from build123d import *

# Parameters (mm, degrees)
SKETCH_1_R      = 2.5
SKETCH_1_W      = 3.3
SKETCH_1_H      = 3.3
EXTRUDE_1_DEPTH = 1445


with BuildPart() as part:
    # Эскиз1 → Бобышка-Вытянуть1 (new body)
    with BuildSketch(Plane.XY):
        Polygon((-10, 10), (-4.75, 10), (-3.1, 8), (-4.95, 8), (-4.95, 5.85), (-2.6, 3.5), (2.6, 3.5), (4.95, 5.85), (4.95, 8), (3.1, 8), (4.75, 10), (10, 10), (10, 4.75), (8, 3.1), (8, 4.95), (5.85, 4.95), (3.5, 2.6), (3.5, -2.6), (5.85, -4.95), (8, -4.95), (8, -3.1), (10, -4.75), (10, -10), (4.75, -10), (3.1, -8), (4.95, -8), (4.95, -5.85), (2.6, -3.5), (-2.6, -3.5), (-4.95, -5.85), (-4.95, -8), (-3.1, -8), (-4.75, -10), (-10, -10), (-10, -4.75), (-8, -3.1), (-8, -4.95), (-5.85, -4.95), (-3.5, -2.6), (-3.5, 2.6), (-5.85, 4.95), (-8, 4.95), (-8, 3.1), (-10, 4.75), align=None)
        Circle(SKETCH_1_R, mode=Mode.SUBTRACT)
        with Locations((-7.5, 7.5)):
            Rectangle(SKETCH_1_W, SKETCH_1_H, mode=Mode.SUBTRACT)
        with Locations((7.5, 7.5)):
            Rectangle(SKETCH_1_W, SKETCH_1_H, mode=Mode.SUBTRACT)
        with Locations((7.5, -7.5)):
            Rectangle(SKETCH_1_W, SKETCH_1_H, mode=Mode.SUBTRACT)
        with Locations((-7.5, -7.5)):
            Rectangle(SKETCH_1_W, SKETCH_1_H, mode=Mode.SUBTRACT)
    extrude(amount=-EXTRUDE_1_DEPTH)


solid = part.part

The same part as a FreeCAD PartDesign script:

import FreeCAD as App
import Part
import Sketcher

V = App.Vector
Q = App.Units.Quantity

doc = App.newDocument("Part")
body = doc.addObject("PartDesign::Body", "Body")

sketch1 = body.newObject("Sketcher::SketchObject", "Sketch")
sketch1.AttachmentSupport = (doc.getObject("XY_Plane"), [""])
sketch1.MapMode = "FlatFace"
sketch1.addGeometry(Part.LineSegment(V(-4.8, 10, 0), V(-10, 10, 0)), False)
sketch1.addGeometry(Part.LineSegment(V(-10, 10, 0), V(-10, 4.8, 0)), False)
sketch1.addGeometry(Part.LineSegment(V(-10, 4.8, 0), V(-8, 3.1, 0)), False)
sketch1.addGeometry(Part.LineSegment(V(-8, 3.1, 0), V(-8, 5, 0)), False)
sketch1.addGeometry(Part.LineSegment(V(-8, 5, 0), V(-5.8, 5, 0)), False)
sketch1.addGeometry(Part.LineSegment(V(-5.8, 5, 0), V(-3.5, 2.6, 0)), False)
sketch1.addGeometry(Part.LineSegment(V(-3.5, 2.6, 0), V(-3.5, -2.6, 0)), False)
sketch1.addGeometry(Part.LineSegment(V(-3.5, -2.6, 0), V(-5.8, -5, 0)), False)
sketch1.addGeometry(Part.LineSegment(V(-5.8, -5, 0), V(-8, -5, 0)), False)
sketch1.addGeometry(Part.LineSegment(V(-8, -5, 0), V(-8, -3.1, 0)), False)
sketch1.addGeometry(Part.LineSegment(V(-8, -3.1, 0), V(-10, -4.8, 0)), False)
sketch1.addGeometry(Part.LineSegment(V(-10, -4.8, 0), V(-10, -10, 0)), False)
sketch1.addGeometry(Part.LineSegment(V(-10, -10, 0), V(-4.8, -10, 0)), False)
sketch1.addGeometry(Part.LineSegment(V(-4.8, -10, 0), V(-3.1, -8, 0)), False)
sketch1.addGeometry(Part.LineSegment(V(-3.1, -8, 0), V(-5, -8, 0)), False)
sketch1.addGeometry(Part.LineSegment(V(-5, -8, 0), V(-5, -5.8, 0)), False)
sketch1.addGeometry(Part.LineSegment(V(-5, -5.8, 0), V(-2.6, -3.5, 0)), False)
sketch1.addGeometry(Part.LineSegment(V(-2.6, -3.5, 0), V(2.6, -3.5, 0)), False)
sketch1.addGeometry(Part.LineSegment(V(2.6, -3.5, 0), V(5, -5.8, 0)), False)
sketch1.addGeometry(Part.LineSegment(V(5, -5.8, 0), V(5, -8, 0)), False)
sketch1.addGeometry(Part.LineSegment(V(5, -8, 0), V(3.1, -8, 0)), False)
sketch1.addGeometry(Part.LineSegment(V(3.1, -8, 0), V(4.8, -10, 0)), False)
sketch1.addGeometry(Part.LineSegment(V(4.8, -10, 0), V(10, -10, 0)), False)
sketch1.addGeometry(Part.LineSegment(V(10, -10, 0), V(10, -4.8, 0)), False)
sketch1.addGeometry(Part.LineSegment(V(10, -4.8, 0), V(8, -3.1, 0)), False)
sketch1.addGeometry(Part.LineSegment(V(8, -3.1, 0), V(8, -5, 0)), False)
sketch1.addGeometry(Part.LineSegment(V(8, -5, 0), V(5.8, -5, 0)), False)
sketch1.addGeometry(Part.LineSegment(V(5.8, -5, 0), V(3.5, -2.6, 0)), False)
sketch1.addGeometry(Part.LineSegment(V(3.5, -2.6, 0), V(3.5, 2.6, 0)), False)
sketch1.addGeometry(Part.LineSegment(V(3.5, 2.6, 0), V(5.8, 5, 0)), False)
sketch1.addGeometry(Part.LineSegment(V(5.8, 5, 0), V(8, 5, 0)), False)
sketch1.addGeometry(Part.LineSegment(V(8, 5, 0), V(8, 3.1, 0)), False)
sketch1.addGeometry(Part.LineSegment(V(8, 3.1, 0), V(10, 4.8, 0)), False)
sketch1.addGeometry(Part.LineSegment(V(10, 4.8, 0), V(10, 10, 0)), False)
sketch1.addGeometry(Part.LineSegment(V(10, 10, 0), V(4.8, 10, 0)), False)
sketch1.addGeometry(Part.LineSegment(V(4.8, 10, 0), V(3.1, 8, 0)), False)
sketch1.addGeometry(Part.LineSegment(V(3.1, 8, 0), V(5, 8, 0)), False)
sketch1.addGeometry(Part.LineSegment(V(5, 8, 0), V(5, 5.8, 0)), False)
sketch1.addGeometry(Part.LineSegment(V(5, 5.8, 0), V(2.6, 3.5, 0)), False)
sketch1.addGeometry(Part.LineSegment(V(2.6, 3.5, 0), V(-2.6, 3.5, 0)), False)
sketch1.addGeometry(Part.LineSegment(V(-2.6, 3.5, 0), V(-5, 5.8, 0)), False)
sketch1.addGeometry(Part.LineSegment(V(-5, 5.8, 0), V(-5, 8, 0)), False)
sketch1.addGeometry(Part.LineSegment(V(-5, 8, 0), V(-3.1, 8, 0)), False)
sketch1.addGeometry(Part.LineSegment(V(-3.1, 8, 0), V(-4.8, 10, 0)), False)
sketch1.addGeometry(Part.LineSegment(V(5.8, -9.2, 0), V(5.8, -5.8, 0)), False)
sketch1.addGeometry(Part.LineSegment(V(5.8, -5.8, 0), V(9.2, -5.8, 0)), False)
sketch1.addGeometry(Part.LineSegment(V(9.2, -5.8, 0), V(9.2, -9.2, 0)), False)
sketch1.addGeometry(Part.LineSegment(V(9.2, -9.2, 0), V(5.8, -9.2, 0)), False)
sketch1.addGeometry(Part.LineSegment(V(-9.2, -9.2, 0), V(-9.2, -5.8, 0)), False)
sketch1.addGeometry(Part.LineSegment(V(-9.2, -5.8, 0), V(-5.8, -5.8, 0)), False)
sketch1.addGeometry(Part.LineSegment(V(-5.8, -5.8, 0), V(-5.8, -9.2, 0)), False)
sketch1.addGeometry(Part.LineSegment(V(-5.8, -9.2, 0), V(-9.2, -9.2, 0)), False)
sketch1.addGeometry(Part.LineSegment(V(5.8, 5.8, 0), V(5.8, 9.2, 0)), False)
sketch1.addGeometry(Part.LineSegment(V(5.8, 9.2, 0), V(9.2, 9.2, 0)), False)
sketch1.addGeometry(Part.LineSegment(V(9.2, 9.2, 0), V(9.2, 5.8, 0)), False)
sketch1.addGeometry(Part.LineSegment(V(9.2, 5.8, 0), V(5.8, 5.8, 0)), False)
sketch1.addGeometry(Part.Circle(V(0, 0, 0), V(0, 0, 1), 2.5), False)
sketch1.addGeometry(Part.LineSegment(V(-9.2, 5.8, 0), V(-9.2, 9.2, 0)), False)
sketch1.addGeometry(Part.LineSegment(V(-9.2, 9.2, 0), V(-5.8, 9.2, 0)), False)
sketch1.addGeometry(Part.LineSegment(V(-5.8, 9.2, 0), V(-5.8, 5.8, 0)), False)
sketch1.addGeometry(Part.LineSegment(V(-5.8, 5.8, 0), V(-9.2, 5.8, 0)), False)
sketch1.addConstraint(Sketcher.Constraint("Coincident", 0, 2, 1, 1))
sketch1.addConstraint(Sketcher.Constraint("Coincident", 1, 2, 2, 1))
sketch1.addConstraint(Sketcher.Constraint("Coincident", 2, 2, 3, 1))
sketch1.addConstraint(Sketcher.Constraint("Coincident", 3, 2, 4, 1))
sketch1.addConstraint(Sketcher.Constraint("Coincident", 4, 2, 5, 1))
sketch1.addConstraint(Sketcher.Constraint("Coincident", 5, 2, 6, 1))
sketch1.addConstraint(Sketcher.Constraint("Coincident", 6, 2, 7, 1))
sketch1.addConstraint(Sketcher.Constraint("Coincident", 7, 2, 8, 1))
sketch1.addConstraint(Sketcher.Constraint("Coincident", 8, 2, 9, 1))
sketch1.addConstraint(Sketcher.Constraint("Coincident", 9, 2, 10, 1))
sketch1.addConstraint(Sketcher.Constraint("Coincident", 10, 2, 11, 1))
sketch1.addConstraint(Sketcher.Constraint("Coincident", 11, 2, 12, 1))
sketch1.addConstraint(Sketcher.Constraint("Coincident", 12, 2, 13, 1))
sketch1.addConstraint(Sketcher.Constraint("Coincident", 13, 2, 14, 1))
sketch1.addConstraint(Sketcher.Constraint("Coincident", 14, 2, 15, 1))
sketch1.addConstraint(Sketcher.Constraint("Coincident", 15, 2, 16, 1))
sketch1.addConstraint(Sketcher.Constraint("Coincident", 16, 2, 17, 1))
sketch1.addConstraint(Sketcher.Constraint("Coincident", 17, 2, 18, 1))
sketch1.addConstraint(Sketcher.Constraint("Coincident", 18, 2, 19, 1))
sketch1.addConstraint(Sketcher.Constraint("Coincident", 19, 2, 20, 1))
sketch1.addConstraint(Sketcher.Constraint("Coincident", 20, 2, 21, 1))
sketch1.addConstraint(Sketcher.Constraint("Coincident", 21, 2, 22, 1))
sketch1.addConstraint(Sketcher.Constraint("Coincident", 22, 2, 23, 1))
sketch1.addConstraint(Sketcher.Constraint("Coincident", 23, 2, 24, 1))
sketch1.addConstraint(Sketcher.Constraint("Coincident", 24, 2, 25, 1))
sketch1.addConstraint(Sketcher.Constraint("Coincident", 25, 2, 26, 1))
sketch1.addConstraint(Sketcher.Constraint("Coincident", 26, 2, 27, 1))
sketch1.addConstraint(Sketcher.Constraint("Coincident", 27, 2, 28, 1))
sketch1.addConstraint(Sketcher.Constraint("Coincident", 28, 2, 29, 1))
sketch1.addConstraint(Sketcher.Constraint("Coincident", 29, 2, 30, 1))
sketch1.addConstraint(Sketcher.Constraint("Coincident", 30, 2, 31, 1))
sketch1.addConstraint(Sketcher.Constraint("Coincident", 31, 2, 32, 1))
sketch1.addConstraint(Sketcher.Constraint("Coincident", 32, 2, 33, 1))
sketch1.addConstraint(Sketcher.Constraint("Coincident", 33, 2, 34, 1))
sketch1.addConstraint(Sketcher.Constraint("Coincident", 34, 2, 35, 1))
sketch1.addConstraint(Sketcher.Constraint("Coincident", 35, 2, 36, 1))
sketch1.addConstraint(Sketcher.Constraint("Coincident", 36, 2, 37, 1))
sketch1.addConstraint(Sketcher.Constraint("Coincident", 37, 2, 38, 1))
sketch1.addConstraint(Sketcher.Constraint("Coincident", 38, 2, 39, 1))
sketch1.addConstraint(Sketcher.Constraint("Coincident", 39, 2, 40, 1))
sketch1.addConstraint(Sketcher.Constraint("Coincident", 40, 2, 41, 1))
sketch1.addConstraint(Sketcher.Constraint("Coincident", 41, 2, 42, 1))
sketch1.addConstraint(Sketcher.Constraint("Coincident", 42, 2, 43, 1))
sketch1.addConstraint(Sketcher.Constraint("Coincident", 43, 2, 0, 1))
sketch1.addConstraint(Sketcher.Constraint("Coincident", 44, 2, 45, 1))
sketch1.addConstraint(Sketcher.Constraint("Coincident", 45, 2, 46, 1))
sketch1.addConstraint(Sketcher.Constraint("Coincident", 46, 2, 47, 1))
sketch1.addConstraint(Sketcher.Constraint("Coincident", 47, 2, 44, 1))
sketch1.addConstraint(Sketcher.Constraint("Coincident", 48, 2, 49, 1))
sketch1.addConstraint(Sketcher.Constraint("Coincident", 49, 2, 50, 1))
sketch1.addConstraint(Sketcher.Constraint("Coincident", 50, 2, 51, 1))
sketch1.addConstraint(Sketcher.Constraint("Coincident", 51, 2, 48, 1))
sketch1.addConstraint(Sketcher.Constraint("Coincident", 52, 2, 53, 1))
sketch1.addConstraint(Sketcher.Constraint("Coincident", 53, 2, 54, 1))
sketch1.addConstraint(Sketcher.Constraint("Coincident", 54, 2, 55, 1))
sketch1.addConstraint(Sketcher.Constraint("Coincident", 55, 2, 52, 1))
sketch1.addConstraint(Sketcher.Constraint("Coincident", 57, 2, 58, 1))
sketch1.addConstraint(Sketcher.Constraint("Coincident", 58, 2, 59, 1))
sketch1.addConstraint(Sketcher.Constraint("Coincident", 59, 2, 60, 1))
sketch1.addConstraint(Sketcher.Constraint("Coincident", 60, 2, 57, 1))
sketch1.addConstraint(Sketcher.Constraint("Horizontal", 0))
sketch1.addConstraint(Sketcher.Constraint("Vertical", 1))
sketch1.addConstraint(Sketcher.Constraint("Vertical", 3))
sketch1.addConstraint(Sketcher.Constraint("Horizontal", 4))
sketch1.addConstraint(Sketcher.Constraint("Vertical", 6))
sketch1.addConstraint(Sketcher.Constraint("Horizontal", 8))
sketch1.addConstraint(Sketcher.Constraint("Vertical", 9))
sketch1.addConstraint(Sketcher.Constraint("Vertical", 11))
sketch1.addConstraint(Sketcher.Constraint("Horizontal", 12))
sketch1.addConstraint(Sketcher.Constraint("Horizontal", 14))
sketch1.addConstraint(Sketcher.Constraint("Vertical", 15))
sketch1.addConstraint(Sketcher.Constraint("Horizontal", 17))
sketch1.addConstraint(Sketcher.Constraint("Vertical", 19))
sketch1.addConstraint(Sketcher.Constraint("Horizontal", 20))
sketch1.addConstraint(Sketcher.Constraint("Horizontal", 22))
sketch1.addConstraint(Sketcher.Constraint("Vertical", 23))
sketch1.addConstraint(Sketcher.Constraint("Vertical", 25))
sketch1.addConstraint(Sketcher.Constraint("Horizontal", 26))
sketch1.addConstraint(Sketcher.Constraint("Vertical", 28))
sketch1.addConstraint(Sketcher.Constraint("Horizontal", 30))
sketch1.addConstraint(Sketcher.Constraint("Vertical", 31))
sketch1.addConstraint(Sketcher.Constraint("Vertical", 33))
sketch1.addConstraint(Sketcher.Constraint("Horizontal", 34))
sketch1.addConstraint(Sketcher.Constraint("Horizontal", 36))
sketch1.addConstraint(Sketcher.Constraint("Vertical", 37))
sketch1.addConstraint(Sketcher.Constraint("Horizontal", 39))
sketch1.addConstraint(Sketcher.Constraint("Vertical", 41))
sketch1.addConstraint(Sketcher.Constraint("Horizontal", 42))
sketch1.addConstraint(Sketcher.Constraint("Vertical", 44))
sketch1.addConstraint(Sketcher.Constraint("Horizontal", 45))
sketch1.addConstraint(Sketcher.Constraint("Vertical", 46))
sketch1.addConstraint(Sketcher.Constraint("Horizontal", 47))
sketch1.addConstraint(Sketcher.Constraint("Vertical", 48))
sketch1.addConstraint(Sketcher.Constraint("Horizontal", 49))
sketch1.addConstraint(Sketcher.Constraint("Vertical", 50))
sketch1.addConstraint(Sketcher.Constraint("Horizontal", 51))
sketch1.addConstraint(Sketcher.Constraint("Vertical", 52))
sketch1.addConstraint(Sketcher.Constraint("Horizontal", 53))
sketch1.addConstraint(Sketcher.Constraint("Vertical", 54))
sketch1.addConstraint(Sketcher.Constraint("Horizontal", 55))
sketch1.addConstraint(Sketcher.Constraint("Vertical", 57))
sketch1.addConstraint(Sketcher.Constraint("Horizontal", 58))
sketch1.addConstraint(Sketcher.Constraint("Vertical", 59))
sketch1.addConstraint(Sketcher.Constraint("Horizontal", 60))
sketch1.addConstraint(Sketcher.Constraint("Coincident", 56, 3, -1, 1))
sketch1.addConstraint(Sketcher.Constraint("Symmetric", 0, 2, 22, 2, -1, 1))
sketch1.addConstraint(Sketcher.Constraint("Symmetric", 2, 2, 24, 2, -1, 1))
sketch1.addConstraint(Sketcher.Constraint("Symmetric", 4, 2, 26, 2, -1, 1))
sketch1.addConstraint(Sketcher.Constraint("Symmetric", 5, 2, 27, 2, -1, 1))
sketch1.addConstraint(Sketcher.Constraint("Symmetric", 7, 2, 29, 2, -1, 1))
sketch1.addConstraint(Sketcher.Constraint("Symmetric", 9, 2, 31, 2, -1, 1))
sketch1.addConstraint(Sketcher.Constraint("Symmetric", 10, 2, 32, 2, -1, 1))
sketch1.addConstraint(Sketcher.Constraint("Symmetric", 12, 2, 34, 2, -1, 1))
sketch1.addConstraint(Sketcher.Constraint("Symmetric", 13, 2, 35, 2, -1, 1))
sketch1.addConstraint(Sketcher.Constraint("Symmetric", 15, 2, 37, 2, -1, 1))
sketch1.addConstraint(Sketcher.Constraint("Symmetric", 16, 2, 38, 2, -1, 1))
sketch1.addConstraint(Sketcher.Constraint("Symmetric", 18, 2, 40, 2, -1, 1))
sketch1.addConstraint(Sketcher.Constraint("Symmetric", 20, 2, 42, 2, -1, 1))
sketch1.addConstraint(Sketcher.Constraint("Symmetric", 50, 2, 52, 2, -1, 1))
sketch1.addConstraint(Sketcher.Constraint("Symmetric", 48, 2, 54, 2, -1, 1))
sketch1.addConstraint(Sketcher.Constraint("Symmetric", 46, 2, 57, 2, -1, 1))
sketch1.addConstraint(Sketcher.Constraint("Symmetric", 44, 2, 59, 2, -1, 1))
sketch1.addConstraint(Sketcher.Constraint("Symmetric", 15, 2, 18, 2, -2))
sketch1.addConstraint(Sketcher.Constraint("Symmetric", 13, 2, 20, 2, -2))
sketch1.addConstraint(Sketcher.Constraint("Symmetric", 12, 2, 21, 2, -2))
sketch1.addConstraint(Sketcher.Constraint("Symmetric", 10, 2, 23, 2, -2))
sketch1.addConstraint(Sketcher.Constraint("Symmetric", 9, 2, 24, 2, -2))
sketch1.addConstraint(Sketcher.Constraint("Symmetric", 7, 2, 26, 2, -2))
sketch1.addConstraint(Sketcher.Constraint("Symmetric", 45, 2, 48, 2, -2))
sketch1.addConstraint(Sketcher.Constraint("Symmetric", 47, 2, 50, 2, -2))
sketch1.addConstraint(Sketcher.Constraint("Perpendicular", 5, 7))
sketch1.addConstraint(Sketcher.Constraint("Perpendicular", 2, 13))
sketch1.addConstraint(Sketcher.Constraint("Parallel", 7, 16))
sketch1.addConstraint(Sketcher.Constraint("Perpendicular", 16, 18))
sketch1.addConstraint(Sketcher.Constraint("Perpendicular", 10, 21))
sketch1.addConstraint(Sketcher.Constraint("Perpendicular", 27, 29))
sketch1.addConstraint(Sketcher.Constraint("Perpendicular", 38, 40))
sketch1.addConstraint(Sketcher.Constraint("Perpendicular", 32, 43))
sketch1.addConstraint(Sketcher.Constraint("Horizontal", 6, 2, 27, 2))
sketch1.addConstraint(Sketcher.Constraint("Horizontal", 18, 2, 44, 2))
sketch1.addConstraint(Sketcher.Constraint("Vertical", 29, 2, 44, 2))
sketch1.addConstraint(Sketcher.Constraint("Equal", 34, 1))
sketch1.addConstraint(Sketcher.Constraint("Equal", 42, 3))
sketch1.addConstraint(Sketcher.Constraint("Equal", 39, 6))
sketch1.addConstraint(Sketcher.Constraint("Equal", 30, 15))
sketch1.addConstraint(Sketcher.Constraint("Equal", 60, 44))
sketch1.addConstraint(Sketcher.Constraint("Equal", 10, 13))
sketch1.addConstraint(Sketcher.Constraint("Equal", 7, 16))
sketch1.addConstraint(Sketcher.Constraint("Diameter", 56, Q("5 mm")))
sketch1.addConstraint(Sketcher.Constraint("DistanceX", 17, 1, 17, 2, Q("5.2 mm")))
sketch1.addConstraint(Sketcher.Constraint("DistanceX", 45, 1, 45, 2, Q("3.3 mm")))
sketch1.addConstraint(Sketcher.Constraint("DistanceX", 0, 2, -1, 1, Q("10 mm")))
sketch1.addConstraint(Sketcher.Constraint("DistanceX", 2, 2, -1, 1, Q("8 mm")))
sketch1.addConstraint(Sketcher.Constraint("DistanceX", 0, 2, 0, 1, Q("5.25 mm")))
sketch1.addConstraint(Sketcher.Constraint("DistanceX", 4, 1, 4, 2, Q("2.15 mm")))
sketch1.addConstraint(Sketcher.Constraint("DistanceX", 14, 2, 14, 1, Q("1.85 mm")))
sketch1.addConstraint(Sketcher.Constraint("DistanceY", -1, 1, 2, 2, Q("3.1 mm")))
pad1 = body.newObject("PartDesign::Pad", "Pad")
pad1.Profile = sketch1
pad1.Length = 1445
pad1.Reversed = True

doc.recompute()
